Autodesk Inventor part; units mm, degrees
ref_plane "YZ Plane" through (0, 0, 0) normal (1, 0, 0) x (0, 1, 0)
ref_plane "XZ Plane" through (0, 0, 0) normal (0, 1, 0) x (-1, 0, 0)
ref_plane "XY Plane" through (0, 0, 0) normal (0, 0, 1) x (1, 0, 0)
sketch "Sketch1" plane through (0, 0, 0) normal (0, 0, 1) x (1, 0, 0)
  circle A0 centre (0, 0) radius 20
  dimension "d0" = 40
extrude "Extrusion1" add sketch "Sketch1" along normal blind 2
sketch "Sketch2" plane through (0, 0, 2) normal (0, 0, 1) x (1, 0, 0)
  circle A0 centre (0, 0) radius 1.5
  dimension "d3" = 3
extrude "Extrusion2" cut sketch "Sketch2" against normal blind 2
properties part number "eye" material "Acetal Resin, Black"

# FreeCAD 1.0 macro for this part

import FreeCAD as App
import Part
import Sketcher

doc = App.newDocument("Part")
body = doc.addObject("PartDesign::Body", "Body")

sketch1 = body.newObject("Sketcher::SketchObject", "Sketch")
sketch1.AttachmentSupport = (doc.getObject("XY_Plane"), [""])
sketch1.MapMode = "FlatFace"
sketch1.addGeometry(Part.Circle(App.Vector(0, 0, 0), App.Vector(0, 0, 1), 20), False)
sketch1.addConstraint([
    Sketcher.Constraint("Coincident", 0, 3, -1, 1),
    Sketcher.Constraint("Diameter", 0, 40.0),
])
pad1 = body.newObject("PartDesign::Pad", "Pad")
pad1.Profile = sketch1
pad1.Length = 2

sketch2 = body.newObject("Sketcher::SketchObject", "Sketch001")
sketch2.AttachmentSupport = (doc.getObject("XY_Plane"), [""])
sketch2.MapMode = "FlatFace"
sketch2.AttachmentOffset = App.Placement(App.Vector(0, 0, 2), App.Rotation())
sketch2.addGeometry(Part.Circle(App.Vector(0, 0, 0), App.Vector(0, 0, 1), 1.5), False)
sketch2.addConstraint([
    Sketcher.Constraint("Coincident", 0, 3, -1, 1),
    Sketcher.Constraint("Diameter", 0, 3.0),
])
pocket1 = body.newObject("PartDesign::Pocket", "Pocket")
pocket1.Profile = sketch2
pocket1.Length = 2

doc.recompute()
